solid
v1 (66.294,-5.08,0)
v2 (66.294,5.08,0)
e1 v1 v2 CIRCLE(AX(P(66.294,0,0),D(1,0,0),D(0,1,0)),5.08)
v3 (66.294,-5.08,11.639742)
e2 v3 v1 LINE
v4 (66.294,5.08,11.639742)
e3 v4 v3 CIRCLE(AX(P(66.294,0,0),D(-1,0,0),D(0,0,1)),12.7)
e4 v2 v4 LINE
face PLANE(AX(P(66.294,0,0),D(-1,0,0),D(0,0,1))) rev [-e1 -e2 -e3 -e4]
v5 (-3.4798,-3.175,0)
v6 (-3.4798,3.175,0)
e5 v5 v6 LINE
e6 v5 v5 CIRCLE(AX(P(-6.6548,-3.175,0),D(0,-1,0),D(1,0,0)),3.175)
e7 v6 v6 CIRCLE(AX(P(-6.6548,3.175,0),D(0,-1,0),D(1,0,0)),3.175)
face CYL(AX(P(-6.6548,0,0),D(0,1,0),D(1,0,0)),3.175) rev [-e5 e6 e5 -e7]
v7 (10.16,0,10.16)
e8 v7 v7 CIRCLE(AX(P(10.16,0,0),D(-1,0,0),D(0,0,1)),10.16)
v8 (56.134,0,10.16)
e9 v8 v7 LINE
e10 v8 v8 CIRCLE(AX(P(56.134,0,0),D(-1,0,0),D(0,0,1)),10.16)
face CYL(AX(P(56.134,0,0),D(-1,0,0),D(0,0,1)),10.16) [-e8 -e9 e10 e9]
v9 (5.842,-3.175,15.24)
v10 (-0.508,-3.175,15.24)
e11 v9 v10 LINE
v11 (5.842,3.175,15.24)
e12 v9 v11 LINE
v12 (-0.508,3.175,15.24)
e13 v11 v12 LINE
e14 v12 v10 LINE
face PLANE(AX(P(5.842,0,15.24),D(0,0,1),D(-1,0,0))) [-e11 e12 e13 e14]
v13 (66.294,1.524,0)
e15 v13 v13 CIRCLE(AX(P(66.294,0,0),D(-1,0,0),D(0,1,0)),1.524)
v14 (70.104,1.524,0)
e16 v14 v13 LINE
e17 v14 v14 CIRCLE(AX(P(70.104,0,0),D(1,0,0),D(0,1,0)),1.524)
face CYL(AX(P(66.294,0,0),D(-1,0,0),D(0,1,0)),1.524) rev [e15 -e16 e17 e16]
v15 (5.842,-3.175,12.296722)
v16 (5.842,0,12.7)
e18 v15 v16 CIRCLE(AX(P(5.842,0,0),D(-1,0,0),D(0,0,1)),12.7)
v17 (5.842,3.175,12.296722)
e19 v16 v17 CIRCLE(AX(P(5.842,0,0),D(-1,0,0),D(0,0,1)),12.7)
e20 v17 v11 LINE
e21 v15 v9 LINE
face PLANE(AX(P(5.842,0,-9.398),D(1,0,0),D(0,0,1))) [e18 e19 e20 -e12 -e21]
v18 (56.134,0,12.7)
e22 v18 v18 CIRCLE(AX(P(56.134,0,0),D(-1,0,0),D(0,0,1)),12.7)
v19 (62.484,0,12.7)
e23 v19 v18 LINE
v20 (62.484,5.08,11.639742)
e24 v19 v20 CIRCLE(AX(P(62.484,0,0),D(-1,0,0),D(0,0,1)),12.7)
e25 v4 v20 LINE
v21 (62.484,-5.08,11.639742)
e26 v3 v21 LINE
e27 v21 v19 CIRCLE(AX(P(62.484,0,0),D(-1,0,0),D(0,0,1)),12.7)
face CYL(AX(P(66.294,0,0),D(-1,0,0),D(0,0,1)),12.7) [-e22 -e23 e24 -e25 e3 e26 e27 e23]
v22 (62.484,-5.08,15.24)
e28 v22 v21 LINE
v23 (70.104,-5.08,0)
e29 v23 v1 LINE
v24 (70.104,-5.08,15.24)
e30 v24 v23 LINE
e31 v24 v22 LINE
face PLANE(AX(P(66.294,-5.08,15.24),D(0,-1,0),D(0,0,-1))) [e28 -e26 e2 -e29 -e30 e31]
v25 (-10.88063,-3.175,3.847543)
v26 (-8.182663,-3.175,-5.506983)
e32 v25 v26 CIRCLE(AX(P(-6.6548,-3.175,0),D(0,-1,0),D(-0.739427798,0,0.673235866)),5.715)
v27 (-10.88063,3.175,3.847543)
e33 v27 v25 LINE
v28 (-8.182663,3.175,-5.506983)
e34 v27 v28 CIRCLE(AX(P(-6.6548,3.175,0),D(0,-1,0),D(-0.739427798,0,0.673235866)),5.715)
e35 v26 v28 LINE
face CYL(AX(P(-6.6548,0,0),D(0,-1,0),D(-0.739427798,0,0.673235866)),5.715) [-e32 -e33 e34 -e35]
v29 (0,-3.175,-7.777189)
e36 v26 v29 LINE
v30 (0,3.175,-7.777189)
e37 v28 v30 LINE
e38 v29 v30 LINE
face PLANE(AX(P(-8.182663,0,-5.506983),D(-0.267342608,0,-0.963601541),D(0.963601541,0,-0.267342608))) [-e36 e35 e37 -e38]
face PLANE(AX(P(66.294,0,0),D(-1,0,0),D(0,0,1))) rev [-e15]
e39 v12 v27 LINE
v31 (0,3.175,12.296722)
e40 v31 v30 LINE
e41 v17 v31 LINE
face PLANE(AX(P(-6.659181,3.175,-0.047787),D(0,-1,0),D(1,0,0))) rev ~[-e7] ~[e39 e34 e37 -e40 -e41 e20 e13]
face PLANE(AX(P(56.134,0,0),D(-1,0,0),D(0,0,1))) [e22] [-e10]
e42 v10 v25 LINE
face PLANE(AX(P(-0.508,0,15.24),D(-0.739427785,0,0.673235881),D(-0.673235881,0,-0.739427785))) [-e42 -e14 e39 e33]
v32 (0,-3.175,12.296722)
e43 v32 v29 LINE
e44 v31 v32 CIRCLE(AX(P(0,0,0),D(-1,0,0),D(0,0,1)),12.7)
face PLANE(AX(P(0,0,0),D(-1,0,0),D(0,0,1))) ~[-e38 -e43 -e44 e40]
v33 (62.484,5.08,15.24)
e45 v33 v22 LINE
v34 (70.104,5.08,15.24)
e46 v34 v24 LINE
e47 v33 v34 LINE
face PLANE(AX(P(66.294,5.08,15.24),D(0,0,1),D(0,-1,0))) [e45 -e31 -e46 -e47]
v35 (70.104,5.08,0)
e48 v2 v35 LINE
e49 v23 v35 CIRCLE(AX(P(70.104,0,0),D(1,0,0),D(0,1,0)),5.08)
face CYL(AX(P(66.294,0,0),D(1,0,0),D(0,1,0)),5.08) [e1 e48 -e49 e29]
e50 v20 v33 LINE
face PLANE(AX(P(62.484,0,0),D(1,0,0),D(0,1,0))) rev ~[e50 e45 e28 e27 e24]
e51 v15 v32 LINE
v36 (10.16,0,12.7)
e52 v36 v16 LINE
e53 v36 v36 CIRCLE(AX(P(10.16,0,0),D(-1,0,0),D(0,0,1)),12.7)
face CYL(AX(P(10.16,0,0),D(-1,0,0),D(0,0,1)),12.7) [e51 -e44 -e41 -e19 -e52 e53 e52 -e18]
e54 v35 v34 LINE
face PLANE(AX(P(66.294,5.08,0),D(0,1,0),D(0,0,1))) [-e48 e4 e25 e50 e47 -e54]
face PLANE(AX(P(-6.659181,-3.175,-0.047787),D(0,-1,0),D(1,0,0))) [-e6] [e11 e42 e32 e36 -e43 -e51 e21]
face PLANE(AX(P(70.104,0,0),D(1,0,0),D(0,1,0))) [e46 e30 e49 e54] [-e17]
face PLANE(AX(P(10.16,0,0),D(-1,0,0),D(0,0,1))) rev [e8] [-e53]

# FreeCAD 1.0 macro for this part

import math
import FreeCAD as App
import Part
import Sketcher

V = App.Vector
Q = App.Units.Quantity


def add_polygon(sketch, points):
    """Adds a closed chain of lines whose ends are joined by coincident constraints."""
    first, n = sketch.GeometryCount, len(points)
    for a, b in zip(points, points[1:] + points[:1]):
        sketch.addGeometry(Part.LineSegment(App.Vector(*a, 0), App.Vector(*b, 0)), False)
    for i in range(n):
        sketch.addConstraint(Sketcher.Constraint("Coincident", first + i, 2, first + (i + 1) % n, 1))

doc = App.newDocument("Part")
body = doc.addObject("PartDesign::Body", "Body")

# Sketch on XZ plane
sketch1 = body.newObject("Sketcher::SketchObject", "Sketch")
sketch1.AttachmentSupport = (doc.getObject("XZ_Plane"), [""])
sketch1.MapMode = "FlatFace"
add_polygon(sketch1, [(66.294, 0), (66.294, 12.7), (56.134, 12.7), (56.134, 10.16), (10.16, 10.16), (10.16, 12.7), (0, 12.7), (0, 0)])  # lines 0-7
sketch1.addConstraint([
    Sketcher.Constraint("Vertical", 0),
    Sketcher.Constraint("Horizontal", 1),
    Sketcher.Constraint("Vertical", 2),
    Sketcher.Constraint("Horizontal", 3),
    Sketcher.Constraint("Vertical", 4),
    Sketcher.Constraint("Horizontal", 5),
    Sketcher.Constraint("Vertical", 6),
    Sketcher.Constraint("Horizontal", 7),
    Sketcher.Constraint("Coincident", 6, 2, -1, 1),
    Sketcher.Constraint("Horizontal", 1, 2, 4, 2),
    Sketcher.Constraint("Equal", 1, 5),
    Sketcher.Constraint("DistanceX", 1, 2, 1, 1, Q("0.4 in")),
    Sketcher.Constraint("DistanceY", 0, 1, 0, 2, Q("0.5 in")),
    Sketcher.Constraint("DistanceY", 2, 2, 2, 1, Q("0.1 in")),
    Sketcher.Constraint("DistanceX", 3, 2, 3, 1, Q("1.81 in")),
])
revolution = body.newObject("PartDesign::Revolution", "Revolution")
revolution.Profile = sketch1
revolution.ReferenceAxis = (sketch1, ["H_Axis"])
revolution.Angle = 360

# Sketch on XZ plane
sketch2 = body.newObject("Sketcher::SketchObject", "Sketch001")
sketch2.AttachmentSupport = (doc.getObject("XZ_Plane"), [""])
sketch2.MapMode = "FlatFace"
sketch2.addGeometry([
    Part.LineSegment(V(5.842, 15.24, 0), V(-0.508, 15.24, 0)),  # 0
    Part.LineSegment(V(-0.508, 15.24, 0), V(-10.88063, 3.847543, 0)),  # 1
    Part.ArcOfCircle(Part.Circle(V(-6.6548, 0, 0), V(0, 0, 1), 5.715), math.radians(137.682696), math.radians(254.493803)),  # 2
    Part.LineSegment(V(-8.182663, -5.506983, 0), V(5.842, -9.398, 0)),  # 3
    Part.LineSegment(V(5.842, -9.398, 0), V(5.842, 15.24, 0)),  # 4
    Part.Circle(V(-6.6548, 0, 0), V(0, 0, 1), 3.175),  # 5
], False)
sketch2.addConstraint([
    Sketcher.Constraint("Coincident", 0, 2, 1, 1),
    Sketcher.Constraint("Tangent", 1, 2, 2, 1),
    Sketcher.Constraint("Tangent", 2, 2, 3, 1),
    Sketcher.Constraint("Coincident", 3, 2, 4, 1),
    Sketcher.Constraint("Coincident", 4, 2, 0, 1),
    Sketcher.Constraint("Horizontal", 0),
    Sketcher.Constraint("Vertical", 4),
    Sketcher.Constraint("Coincident", 5, 3, 2, 3),
    Sketcher.Constraint("PointOnObject", 2, 3, -1),
    Sketcher.Constraint("Diameter", 5, Q("0.25 in")),
    Sketcher.Constraint("Radius", 2, Q("0.225 in")),
    Sketcher.Constraint("DistanceX", 0, 2, 0, 1, Q("0.25 in")),
    Sketcher.Constraint("DistanceY", 4, 1, 4, 2, Q("0.97 in")),
    Sketcher.Constraint("DistanceY", -1, 1, 0, 2, Q("0.6 in")),
    Sketcher.Constraint("DistanceX", 0, 2, -1, 1, Q("0.02 in")),
    Sketcher.Constraint("DistanceX", 2, 3, -1, 1, Q("0.262 in")),
])
pad1 = body.newObject("PartDesign::Pad", "Pad")
pad1.Profile = sketch2
pad1.Length = Q("0.25 in")
pad1.Midplane = True

# Sketch on YZ plane
sketch3 = body.newObject("Sketcher::SketchObject", "Sketch002")
sketch3.AttachmentSupport = (doc.getObject("YZ_Plane"), [""])
sketch3.MapMode = "FlatFace"
sketch3.AttachmentOffset = App.Placement(V(0, 0, 2.61 * 25.4), App.Rotation())
sketch3.addGeometry([
    Part.ArcOfCircle(Part.Circle(V(0, 0, 0), V(0, 0, 1), 5.08), math.radians(180), math.radians(360)),  # 0
    Part.LineSegment(V(5.08, 0, 0), V(5.08, 15.24, 0)),  # 1
    Part.LineSegment(V(5.08, 15.24, 0), V(-5.08, 15.24, 0)),  # 2
    Part.LineSegment(V(-5.08, 15.24, 0), V(-5.08, 0, 0)),  # 3
    Part.Circle(V(0, 0, 0), V(0, 0, 1), 1.524),  # 4
], False)
sketch3.addConstraint([
    Sketcher.Constraint("Tangent", 0, 2, 1, 1),
    Sketcher.Constraint("Coincident", 1, 2, 2, 1),
    Sketcher.Constraint("Coincident", 2, 2, 3, 1),
    Sketcher.Constraint("Tangent", 3, 2, 0, 1),
    Sketcher.Constraint("Vertical", 1),
    Sketcher.Constraint("Horizontal", 2),
    Sketcher.Constraint("Vertical", 3),
    Sketcher.Constraint("Coincident", 0, 3, -1, 1),
    Sketcher.Constraint("Coincident", 4, 3, -1, 1),
    Sketcher.Constraint("Radius", 0, Q("0.2 in")),
    Sketcher.Constraint("Diameter", 4, Q("0.12 in")),
    Sketcher.Constraint("DistanceY", 1, 1, 1, 2, Q("0.6 in")),
])
pad2 = body.newObject("PartDesign::Pad", "Pad001")
pad2.Profile = sketch3
pad2.Length = Q("0.3 in")
pad2.Midplane = True

doc.recompute()
